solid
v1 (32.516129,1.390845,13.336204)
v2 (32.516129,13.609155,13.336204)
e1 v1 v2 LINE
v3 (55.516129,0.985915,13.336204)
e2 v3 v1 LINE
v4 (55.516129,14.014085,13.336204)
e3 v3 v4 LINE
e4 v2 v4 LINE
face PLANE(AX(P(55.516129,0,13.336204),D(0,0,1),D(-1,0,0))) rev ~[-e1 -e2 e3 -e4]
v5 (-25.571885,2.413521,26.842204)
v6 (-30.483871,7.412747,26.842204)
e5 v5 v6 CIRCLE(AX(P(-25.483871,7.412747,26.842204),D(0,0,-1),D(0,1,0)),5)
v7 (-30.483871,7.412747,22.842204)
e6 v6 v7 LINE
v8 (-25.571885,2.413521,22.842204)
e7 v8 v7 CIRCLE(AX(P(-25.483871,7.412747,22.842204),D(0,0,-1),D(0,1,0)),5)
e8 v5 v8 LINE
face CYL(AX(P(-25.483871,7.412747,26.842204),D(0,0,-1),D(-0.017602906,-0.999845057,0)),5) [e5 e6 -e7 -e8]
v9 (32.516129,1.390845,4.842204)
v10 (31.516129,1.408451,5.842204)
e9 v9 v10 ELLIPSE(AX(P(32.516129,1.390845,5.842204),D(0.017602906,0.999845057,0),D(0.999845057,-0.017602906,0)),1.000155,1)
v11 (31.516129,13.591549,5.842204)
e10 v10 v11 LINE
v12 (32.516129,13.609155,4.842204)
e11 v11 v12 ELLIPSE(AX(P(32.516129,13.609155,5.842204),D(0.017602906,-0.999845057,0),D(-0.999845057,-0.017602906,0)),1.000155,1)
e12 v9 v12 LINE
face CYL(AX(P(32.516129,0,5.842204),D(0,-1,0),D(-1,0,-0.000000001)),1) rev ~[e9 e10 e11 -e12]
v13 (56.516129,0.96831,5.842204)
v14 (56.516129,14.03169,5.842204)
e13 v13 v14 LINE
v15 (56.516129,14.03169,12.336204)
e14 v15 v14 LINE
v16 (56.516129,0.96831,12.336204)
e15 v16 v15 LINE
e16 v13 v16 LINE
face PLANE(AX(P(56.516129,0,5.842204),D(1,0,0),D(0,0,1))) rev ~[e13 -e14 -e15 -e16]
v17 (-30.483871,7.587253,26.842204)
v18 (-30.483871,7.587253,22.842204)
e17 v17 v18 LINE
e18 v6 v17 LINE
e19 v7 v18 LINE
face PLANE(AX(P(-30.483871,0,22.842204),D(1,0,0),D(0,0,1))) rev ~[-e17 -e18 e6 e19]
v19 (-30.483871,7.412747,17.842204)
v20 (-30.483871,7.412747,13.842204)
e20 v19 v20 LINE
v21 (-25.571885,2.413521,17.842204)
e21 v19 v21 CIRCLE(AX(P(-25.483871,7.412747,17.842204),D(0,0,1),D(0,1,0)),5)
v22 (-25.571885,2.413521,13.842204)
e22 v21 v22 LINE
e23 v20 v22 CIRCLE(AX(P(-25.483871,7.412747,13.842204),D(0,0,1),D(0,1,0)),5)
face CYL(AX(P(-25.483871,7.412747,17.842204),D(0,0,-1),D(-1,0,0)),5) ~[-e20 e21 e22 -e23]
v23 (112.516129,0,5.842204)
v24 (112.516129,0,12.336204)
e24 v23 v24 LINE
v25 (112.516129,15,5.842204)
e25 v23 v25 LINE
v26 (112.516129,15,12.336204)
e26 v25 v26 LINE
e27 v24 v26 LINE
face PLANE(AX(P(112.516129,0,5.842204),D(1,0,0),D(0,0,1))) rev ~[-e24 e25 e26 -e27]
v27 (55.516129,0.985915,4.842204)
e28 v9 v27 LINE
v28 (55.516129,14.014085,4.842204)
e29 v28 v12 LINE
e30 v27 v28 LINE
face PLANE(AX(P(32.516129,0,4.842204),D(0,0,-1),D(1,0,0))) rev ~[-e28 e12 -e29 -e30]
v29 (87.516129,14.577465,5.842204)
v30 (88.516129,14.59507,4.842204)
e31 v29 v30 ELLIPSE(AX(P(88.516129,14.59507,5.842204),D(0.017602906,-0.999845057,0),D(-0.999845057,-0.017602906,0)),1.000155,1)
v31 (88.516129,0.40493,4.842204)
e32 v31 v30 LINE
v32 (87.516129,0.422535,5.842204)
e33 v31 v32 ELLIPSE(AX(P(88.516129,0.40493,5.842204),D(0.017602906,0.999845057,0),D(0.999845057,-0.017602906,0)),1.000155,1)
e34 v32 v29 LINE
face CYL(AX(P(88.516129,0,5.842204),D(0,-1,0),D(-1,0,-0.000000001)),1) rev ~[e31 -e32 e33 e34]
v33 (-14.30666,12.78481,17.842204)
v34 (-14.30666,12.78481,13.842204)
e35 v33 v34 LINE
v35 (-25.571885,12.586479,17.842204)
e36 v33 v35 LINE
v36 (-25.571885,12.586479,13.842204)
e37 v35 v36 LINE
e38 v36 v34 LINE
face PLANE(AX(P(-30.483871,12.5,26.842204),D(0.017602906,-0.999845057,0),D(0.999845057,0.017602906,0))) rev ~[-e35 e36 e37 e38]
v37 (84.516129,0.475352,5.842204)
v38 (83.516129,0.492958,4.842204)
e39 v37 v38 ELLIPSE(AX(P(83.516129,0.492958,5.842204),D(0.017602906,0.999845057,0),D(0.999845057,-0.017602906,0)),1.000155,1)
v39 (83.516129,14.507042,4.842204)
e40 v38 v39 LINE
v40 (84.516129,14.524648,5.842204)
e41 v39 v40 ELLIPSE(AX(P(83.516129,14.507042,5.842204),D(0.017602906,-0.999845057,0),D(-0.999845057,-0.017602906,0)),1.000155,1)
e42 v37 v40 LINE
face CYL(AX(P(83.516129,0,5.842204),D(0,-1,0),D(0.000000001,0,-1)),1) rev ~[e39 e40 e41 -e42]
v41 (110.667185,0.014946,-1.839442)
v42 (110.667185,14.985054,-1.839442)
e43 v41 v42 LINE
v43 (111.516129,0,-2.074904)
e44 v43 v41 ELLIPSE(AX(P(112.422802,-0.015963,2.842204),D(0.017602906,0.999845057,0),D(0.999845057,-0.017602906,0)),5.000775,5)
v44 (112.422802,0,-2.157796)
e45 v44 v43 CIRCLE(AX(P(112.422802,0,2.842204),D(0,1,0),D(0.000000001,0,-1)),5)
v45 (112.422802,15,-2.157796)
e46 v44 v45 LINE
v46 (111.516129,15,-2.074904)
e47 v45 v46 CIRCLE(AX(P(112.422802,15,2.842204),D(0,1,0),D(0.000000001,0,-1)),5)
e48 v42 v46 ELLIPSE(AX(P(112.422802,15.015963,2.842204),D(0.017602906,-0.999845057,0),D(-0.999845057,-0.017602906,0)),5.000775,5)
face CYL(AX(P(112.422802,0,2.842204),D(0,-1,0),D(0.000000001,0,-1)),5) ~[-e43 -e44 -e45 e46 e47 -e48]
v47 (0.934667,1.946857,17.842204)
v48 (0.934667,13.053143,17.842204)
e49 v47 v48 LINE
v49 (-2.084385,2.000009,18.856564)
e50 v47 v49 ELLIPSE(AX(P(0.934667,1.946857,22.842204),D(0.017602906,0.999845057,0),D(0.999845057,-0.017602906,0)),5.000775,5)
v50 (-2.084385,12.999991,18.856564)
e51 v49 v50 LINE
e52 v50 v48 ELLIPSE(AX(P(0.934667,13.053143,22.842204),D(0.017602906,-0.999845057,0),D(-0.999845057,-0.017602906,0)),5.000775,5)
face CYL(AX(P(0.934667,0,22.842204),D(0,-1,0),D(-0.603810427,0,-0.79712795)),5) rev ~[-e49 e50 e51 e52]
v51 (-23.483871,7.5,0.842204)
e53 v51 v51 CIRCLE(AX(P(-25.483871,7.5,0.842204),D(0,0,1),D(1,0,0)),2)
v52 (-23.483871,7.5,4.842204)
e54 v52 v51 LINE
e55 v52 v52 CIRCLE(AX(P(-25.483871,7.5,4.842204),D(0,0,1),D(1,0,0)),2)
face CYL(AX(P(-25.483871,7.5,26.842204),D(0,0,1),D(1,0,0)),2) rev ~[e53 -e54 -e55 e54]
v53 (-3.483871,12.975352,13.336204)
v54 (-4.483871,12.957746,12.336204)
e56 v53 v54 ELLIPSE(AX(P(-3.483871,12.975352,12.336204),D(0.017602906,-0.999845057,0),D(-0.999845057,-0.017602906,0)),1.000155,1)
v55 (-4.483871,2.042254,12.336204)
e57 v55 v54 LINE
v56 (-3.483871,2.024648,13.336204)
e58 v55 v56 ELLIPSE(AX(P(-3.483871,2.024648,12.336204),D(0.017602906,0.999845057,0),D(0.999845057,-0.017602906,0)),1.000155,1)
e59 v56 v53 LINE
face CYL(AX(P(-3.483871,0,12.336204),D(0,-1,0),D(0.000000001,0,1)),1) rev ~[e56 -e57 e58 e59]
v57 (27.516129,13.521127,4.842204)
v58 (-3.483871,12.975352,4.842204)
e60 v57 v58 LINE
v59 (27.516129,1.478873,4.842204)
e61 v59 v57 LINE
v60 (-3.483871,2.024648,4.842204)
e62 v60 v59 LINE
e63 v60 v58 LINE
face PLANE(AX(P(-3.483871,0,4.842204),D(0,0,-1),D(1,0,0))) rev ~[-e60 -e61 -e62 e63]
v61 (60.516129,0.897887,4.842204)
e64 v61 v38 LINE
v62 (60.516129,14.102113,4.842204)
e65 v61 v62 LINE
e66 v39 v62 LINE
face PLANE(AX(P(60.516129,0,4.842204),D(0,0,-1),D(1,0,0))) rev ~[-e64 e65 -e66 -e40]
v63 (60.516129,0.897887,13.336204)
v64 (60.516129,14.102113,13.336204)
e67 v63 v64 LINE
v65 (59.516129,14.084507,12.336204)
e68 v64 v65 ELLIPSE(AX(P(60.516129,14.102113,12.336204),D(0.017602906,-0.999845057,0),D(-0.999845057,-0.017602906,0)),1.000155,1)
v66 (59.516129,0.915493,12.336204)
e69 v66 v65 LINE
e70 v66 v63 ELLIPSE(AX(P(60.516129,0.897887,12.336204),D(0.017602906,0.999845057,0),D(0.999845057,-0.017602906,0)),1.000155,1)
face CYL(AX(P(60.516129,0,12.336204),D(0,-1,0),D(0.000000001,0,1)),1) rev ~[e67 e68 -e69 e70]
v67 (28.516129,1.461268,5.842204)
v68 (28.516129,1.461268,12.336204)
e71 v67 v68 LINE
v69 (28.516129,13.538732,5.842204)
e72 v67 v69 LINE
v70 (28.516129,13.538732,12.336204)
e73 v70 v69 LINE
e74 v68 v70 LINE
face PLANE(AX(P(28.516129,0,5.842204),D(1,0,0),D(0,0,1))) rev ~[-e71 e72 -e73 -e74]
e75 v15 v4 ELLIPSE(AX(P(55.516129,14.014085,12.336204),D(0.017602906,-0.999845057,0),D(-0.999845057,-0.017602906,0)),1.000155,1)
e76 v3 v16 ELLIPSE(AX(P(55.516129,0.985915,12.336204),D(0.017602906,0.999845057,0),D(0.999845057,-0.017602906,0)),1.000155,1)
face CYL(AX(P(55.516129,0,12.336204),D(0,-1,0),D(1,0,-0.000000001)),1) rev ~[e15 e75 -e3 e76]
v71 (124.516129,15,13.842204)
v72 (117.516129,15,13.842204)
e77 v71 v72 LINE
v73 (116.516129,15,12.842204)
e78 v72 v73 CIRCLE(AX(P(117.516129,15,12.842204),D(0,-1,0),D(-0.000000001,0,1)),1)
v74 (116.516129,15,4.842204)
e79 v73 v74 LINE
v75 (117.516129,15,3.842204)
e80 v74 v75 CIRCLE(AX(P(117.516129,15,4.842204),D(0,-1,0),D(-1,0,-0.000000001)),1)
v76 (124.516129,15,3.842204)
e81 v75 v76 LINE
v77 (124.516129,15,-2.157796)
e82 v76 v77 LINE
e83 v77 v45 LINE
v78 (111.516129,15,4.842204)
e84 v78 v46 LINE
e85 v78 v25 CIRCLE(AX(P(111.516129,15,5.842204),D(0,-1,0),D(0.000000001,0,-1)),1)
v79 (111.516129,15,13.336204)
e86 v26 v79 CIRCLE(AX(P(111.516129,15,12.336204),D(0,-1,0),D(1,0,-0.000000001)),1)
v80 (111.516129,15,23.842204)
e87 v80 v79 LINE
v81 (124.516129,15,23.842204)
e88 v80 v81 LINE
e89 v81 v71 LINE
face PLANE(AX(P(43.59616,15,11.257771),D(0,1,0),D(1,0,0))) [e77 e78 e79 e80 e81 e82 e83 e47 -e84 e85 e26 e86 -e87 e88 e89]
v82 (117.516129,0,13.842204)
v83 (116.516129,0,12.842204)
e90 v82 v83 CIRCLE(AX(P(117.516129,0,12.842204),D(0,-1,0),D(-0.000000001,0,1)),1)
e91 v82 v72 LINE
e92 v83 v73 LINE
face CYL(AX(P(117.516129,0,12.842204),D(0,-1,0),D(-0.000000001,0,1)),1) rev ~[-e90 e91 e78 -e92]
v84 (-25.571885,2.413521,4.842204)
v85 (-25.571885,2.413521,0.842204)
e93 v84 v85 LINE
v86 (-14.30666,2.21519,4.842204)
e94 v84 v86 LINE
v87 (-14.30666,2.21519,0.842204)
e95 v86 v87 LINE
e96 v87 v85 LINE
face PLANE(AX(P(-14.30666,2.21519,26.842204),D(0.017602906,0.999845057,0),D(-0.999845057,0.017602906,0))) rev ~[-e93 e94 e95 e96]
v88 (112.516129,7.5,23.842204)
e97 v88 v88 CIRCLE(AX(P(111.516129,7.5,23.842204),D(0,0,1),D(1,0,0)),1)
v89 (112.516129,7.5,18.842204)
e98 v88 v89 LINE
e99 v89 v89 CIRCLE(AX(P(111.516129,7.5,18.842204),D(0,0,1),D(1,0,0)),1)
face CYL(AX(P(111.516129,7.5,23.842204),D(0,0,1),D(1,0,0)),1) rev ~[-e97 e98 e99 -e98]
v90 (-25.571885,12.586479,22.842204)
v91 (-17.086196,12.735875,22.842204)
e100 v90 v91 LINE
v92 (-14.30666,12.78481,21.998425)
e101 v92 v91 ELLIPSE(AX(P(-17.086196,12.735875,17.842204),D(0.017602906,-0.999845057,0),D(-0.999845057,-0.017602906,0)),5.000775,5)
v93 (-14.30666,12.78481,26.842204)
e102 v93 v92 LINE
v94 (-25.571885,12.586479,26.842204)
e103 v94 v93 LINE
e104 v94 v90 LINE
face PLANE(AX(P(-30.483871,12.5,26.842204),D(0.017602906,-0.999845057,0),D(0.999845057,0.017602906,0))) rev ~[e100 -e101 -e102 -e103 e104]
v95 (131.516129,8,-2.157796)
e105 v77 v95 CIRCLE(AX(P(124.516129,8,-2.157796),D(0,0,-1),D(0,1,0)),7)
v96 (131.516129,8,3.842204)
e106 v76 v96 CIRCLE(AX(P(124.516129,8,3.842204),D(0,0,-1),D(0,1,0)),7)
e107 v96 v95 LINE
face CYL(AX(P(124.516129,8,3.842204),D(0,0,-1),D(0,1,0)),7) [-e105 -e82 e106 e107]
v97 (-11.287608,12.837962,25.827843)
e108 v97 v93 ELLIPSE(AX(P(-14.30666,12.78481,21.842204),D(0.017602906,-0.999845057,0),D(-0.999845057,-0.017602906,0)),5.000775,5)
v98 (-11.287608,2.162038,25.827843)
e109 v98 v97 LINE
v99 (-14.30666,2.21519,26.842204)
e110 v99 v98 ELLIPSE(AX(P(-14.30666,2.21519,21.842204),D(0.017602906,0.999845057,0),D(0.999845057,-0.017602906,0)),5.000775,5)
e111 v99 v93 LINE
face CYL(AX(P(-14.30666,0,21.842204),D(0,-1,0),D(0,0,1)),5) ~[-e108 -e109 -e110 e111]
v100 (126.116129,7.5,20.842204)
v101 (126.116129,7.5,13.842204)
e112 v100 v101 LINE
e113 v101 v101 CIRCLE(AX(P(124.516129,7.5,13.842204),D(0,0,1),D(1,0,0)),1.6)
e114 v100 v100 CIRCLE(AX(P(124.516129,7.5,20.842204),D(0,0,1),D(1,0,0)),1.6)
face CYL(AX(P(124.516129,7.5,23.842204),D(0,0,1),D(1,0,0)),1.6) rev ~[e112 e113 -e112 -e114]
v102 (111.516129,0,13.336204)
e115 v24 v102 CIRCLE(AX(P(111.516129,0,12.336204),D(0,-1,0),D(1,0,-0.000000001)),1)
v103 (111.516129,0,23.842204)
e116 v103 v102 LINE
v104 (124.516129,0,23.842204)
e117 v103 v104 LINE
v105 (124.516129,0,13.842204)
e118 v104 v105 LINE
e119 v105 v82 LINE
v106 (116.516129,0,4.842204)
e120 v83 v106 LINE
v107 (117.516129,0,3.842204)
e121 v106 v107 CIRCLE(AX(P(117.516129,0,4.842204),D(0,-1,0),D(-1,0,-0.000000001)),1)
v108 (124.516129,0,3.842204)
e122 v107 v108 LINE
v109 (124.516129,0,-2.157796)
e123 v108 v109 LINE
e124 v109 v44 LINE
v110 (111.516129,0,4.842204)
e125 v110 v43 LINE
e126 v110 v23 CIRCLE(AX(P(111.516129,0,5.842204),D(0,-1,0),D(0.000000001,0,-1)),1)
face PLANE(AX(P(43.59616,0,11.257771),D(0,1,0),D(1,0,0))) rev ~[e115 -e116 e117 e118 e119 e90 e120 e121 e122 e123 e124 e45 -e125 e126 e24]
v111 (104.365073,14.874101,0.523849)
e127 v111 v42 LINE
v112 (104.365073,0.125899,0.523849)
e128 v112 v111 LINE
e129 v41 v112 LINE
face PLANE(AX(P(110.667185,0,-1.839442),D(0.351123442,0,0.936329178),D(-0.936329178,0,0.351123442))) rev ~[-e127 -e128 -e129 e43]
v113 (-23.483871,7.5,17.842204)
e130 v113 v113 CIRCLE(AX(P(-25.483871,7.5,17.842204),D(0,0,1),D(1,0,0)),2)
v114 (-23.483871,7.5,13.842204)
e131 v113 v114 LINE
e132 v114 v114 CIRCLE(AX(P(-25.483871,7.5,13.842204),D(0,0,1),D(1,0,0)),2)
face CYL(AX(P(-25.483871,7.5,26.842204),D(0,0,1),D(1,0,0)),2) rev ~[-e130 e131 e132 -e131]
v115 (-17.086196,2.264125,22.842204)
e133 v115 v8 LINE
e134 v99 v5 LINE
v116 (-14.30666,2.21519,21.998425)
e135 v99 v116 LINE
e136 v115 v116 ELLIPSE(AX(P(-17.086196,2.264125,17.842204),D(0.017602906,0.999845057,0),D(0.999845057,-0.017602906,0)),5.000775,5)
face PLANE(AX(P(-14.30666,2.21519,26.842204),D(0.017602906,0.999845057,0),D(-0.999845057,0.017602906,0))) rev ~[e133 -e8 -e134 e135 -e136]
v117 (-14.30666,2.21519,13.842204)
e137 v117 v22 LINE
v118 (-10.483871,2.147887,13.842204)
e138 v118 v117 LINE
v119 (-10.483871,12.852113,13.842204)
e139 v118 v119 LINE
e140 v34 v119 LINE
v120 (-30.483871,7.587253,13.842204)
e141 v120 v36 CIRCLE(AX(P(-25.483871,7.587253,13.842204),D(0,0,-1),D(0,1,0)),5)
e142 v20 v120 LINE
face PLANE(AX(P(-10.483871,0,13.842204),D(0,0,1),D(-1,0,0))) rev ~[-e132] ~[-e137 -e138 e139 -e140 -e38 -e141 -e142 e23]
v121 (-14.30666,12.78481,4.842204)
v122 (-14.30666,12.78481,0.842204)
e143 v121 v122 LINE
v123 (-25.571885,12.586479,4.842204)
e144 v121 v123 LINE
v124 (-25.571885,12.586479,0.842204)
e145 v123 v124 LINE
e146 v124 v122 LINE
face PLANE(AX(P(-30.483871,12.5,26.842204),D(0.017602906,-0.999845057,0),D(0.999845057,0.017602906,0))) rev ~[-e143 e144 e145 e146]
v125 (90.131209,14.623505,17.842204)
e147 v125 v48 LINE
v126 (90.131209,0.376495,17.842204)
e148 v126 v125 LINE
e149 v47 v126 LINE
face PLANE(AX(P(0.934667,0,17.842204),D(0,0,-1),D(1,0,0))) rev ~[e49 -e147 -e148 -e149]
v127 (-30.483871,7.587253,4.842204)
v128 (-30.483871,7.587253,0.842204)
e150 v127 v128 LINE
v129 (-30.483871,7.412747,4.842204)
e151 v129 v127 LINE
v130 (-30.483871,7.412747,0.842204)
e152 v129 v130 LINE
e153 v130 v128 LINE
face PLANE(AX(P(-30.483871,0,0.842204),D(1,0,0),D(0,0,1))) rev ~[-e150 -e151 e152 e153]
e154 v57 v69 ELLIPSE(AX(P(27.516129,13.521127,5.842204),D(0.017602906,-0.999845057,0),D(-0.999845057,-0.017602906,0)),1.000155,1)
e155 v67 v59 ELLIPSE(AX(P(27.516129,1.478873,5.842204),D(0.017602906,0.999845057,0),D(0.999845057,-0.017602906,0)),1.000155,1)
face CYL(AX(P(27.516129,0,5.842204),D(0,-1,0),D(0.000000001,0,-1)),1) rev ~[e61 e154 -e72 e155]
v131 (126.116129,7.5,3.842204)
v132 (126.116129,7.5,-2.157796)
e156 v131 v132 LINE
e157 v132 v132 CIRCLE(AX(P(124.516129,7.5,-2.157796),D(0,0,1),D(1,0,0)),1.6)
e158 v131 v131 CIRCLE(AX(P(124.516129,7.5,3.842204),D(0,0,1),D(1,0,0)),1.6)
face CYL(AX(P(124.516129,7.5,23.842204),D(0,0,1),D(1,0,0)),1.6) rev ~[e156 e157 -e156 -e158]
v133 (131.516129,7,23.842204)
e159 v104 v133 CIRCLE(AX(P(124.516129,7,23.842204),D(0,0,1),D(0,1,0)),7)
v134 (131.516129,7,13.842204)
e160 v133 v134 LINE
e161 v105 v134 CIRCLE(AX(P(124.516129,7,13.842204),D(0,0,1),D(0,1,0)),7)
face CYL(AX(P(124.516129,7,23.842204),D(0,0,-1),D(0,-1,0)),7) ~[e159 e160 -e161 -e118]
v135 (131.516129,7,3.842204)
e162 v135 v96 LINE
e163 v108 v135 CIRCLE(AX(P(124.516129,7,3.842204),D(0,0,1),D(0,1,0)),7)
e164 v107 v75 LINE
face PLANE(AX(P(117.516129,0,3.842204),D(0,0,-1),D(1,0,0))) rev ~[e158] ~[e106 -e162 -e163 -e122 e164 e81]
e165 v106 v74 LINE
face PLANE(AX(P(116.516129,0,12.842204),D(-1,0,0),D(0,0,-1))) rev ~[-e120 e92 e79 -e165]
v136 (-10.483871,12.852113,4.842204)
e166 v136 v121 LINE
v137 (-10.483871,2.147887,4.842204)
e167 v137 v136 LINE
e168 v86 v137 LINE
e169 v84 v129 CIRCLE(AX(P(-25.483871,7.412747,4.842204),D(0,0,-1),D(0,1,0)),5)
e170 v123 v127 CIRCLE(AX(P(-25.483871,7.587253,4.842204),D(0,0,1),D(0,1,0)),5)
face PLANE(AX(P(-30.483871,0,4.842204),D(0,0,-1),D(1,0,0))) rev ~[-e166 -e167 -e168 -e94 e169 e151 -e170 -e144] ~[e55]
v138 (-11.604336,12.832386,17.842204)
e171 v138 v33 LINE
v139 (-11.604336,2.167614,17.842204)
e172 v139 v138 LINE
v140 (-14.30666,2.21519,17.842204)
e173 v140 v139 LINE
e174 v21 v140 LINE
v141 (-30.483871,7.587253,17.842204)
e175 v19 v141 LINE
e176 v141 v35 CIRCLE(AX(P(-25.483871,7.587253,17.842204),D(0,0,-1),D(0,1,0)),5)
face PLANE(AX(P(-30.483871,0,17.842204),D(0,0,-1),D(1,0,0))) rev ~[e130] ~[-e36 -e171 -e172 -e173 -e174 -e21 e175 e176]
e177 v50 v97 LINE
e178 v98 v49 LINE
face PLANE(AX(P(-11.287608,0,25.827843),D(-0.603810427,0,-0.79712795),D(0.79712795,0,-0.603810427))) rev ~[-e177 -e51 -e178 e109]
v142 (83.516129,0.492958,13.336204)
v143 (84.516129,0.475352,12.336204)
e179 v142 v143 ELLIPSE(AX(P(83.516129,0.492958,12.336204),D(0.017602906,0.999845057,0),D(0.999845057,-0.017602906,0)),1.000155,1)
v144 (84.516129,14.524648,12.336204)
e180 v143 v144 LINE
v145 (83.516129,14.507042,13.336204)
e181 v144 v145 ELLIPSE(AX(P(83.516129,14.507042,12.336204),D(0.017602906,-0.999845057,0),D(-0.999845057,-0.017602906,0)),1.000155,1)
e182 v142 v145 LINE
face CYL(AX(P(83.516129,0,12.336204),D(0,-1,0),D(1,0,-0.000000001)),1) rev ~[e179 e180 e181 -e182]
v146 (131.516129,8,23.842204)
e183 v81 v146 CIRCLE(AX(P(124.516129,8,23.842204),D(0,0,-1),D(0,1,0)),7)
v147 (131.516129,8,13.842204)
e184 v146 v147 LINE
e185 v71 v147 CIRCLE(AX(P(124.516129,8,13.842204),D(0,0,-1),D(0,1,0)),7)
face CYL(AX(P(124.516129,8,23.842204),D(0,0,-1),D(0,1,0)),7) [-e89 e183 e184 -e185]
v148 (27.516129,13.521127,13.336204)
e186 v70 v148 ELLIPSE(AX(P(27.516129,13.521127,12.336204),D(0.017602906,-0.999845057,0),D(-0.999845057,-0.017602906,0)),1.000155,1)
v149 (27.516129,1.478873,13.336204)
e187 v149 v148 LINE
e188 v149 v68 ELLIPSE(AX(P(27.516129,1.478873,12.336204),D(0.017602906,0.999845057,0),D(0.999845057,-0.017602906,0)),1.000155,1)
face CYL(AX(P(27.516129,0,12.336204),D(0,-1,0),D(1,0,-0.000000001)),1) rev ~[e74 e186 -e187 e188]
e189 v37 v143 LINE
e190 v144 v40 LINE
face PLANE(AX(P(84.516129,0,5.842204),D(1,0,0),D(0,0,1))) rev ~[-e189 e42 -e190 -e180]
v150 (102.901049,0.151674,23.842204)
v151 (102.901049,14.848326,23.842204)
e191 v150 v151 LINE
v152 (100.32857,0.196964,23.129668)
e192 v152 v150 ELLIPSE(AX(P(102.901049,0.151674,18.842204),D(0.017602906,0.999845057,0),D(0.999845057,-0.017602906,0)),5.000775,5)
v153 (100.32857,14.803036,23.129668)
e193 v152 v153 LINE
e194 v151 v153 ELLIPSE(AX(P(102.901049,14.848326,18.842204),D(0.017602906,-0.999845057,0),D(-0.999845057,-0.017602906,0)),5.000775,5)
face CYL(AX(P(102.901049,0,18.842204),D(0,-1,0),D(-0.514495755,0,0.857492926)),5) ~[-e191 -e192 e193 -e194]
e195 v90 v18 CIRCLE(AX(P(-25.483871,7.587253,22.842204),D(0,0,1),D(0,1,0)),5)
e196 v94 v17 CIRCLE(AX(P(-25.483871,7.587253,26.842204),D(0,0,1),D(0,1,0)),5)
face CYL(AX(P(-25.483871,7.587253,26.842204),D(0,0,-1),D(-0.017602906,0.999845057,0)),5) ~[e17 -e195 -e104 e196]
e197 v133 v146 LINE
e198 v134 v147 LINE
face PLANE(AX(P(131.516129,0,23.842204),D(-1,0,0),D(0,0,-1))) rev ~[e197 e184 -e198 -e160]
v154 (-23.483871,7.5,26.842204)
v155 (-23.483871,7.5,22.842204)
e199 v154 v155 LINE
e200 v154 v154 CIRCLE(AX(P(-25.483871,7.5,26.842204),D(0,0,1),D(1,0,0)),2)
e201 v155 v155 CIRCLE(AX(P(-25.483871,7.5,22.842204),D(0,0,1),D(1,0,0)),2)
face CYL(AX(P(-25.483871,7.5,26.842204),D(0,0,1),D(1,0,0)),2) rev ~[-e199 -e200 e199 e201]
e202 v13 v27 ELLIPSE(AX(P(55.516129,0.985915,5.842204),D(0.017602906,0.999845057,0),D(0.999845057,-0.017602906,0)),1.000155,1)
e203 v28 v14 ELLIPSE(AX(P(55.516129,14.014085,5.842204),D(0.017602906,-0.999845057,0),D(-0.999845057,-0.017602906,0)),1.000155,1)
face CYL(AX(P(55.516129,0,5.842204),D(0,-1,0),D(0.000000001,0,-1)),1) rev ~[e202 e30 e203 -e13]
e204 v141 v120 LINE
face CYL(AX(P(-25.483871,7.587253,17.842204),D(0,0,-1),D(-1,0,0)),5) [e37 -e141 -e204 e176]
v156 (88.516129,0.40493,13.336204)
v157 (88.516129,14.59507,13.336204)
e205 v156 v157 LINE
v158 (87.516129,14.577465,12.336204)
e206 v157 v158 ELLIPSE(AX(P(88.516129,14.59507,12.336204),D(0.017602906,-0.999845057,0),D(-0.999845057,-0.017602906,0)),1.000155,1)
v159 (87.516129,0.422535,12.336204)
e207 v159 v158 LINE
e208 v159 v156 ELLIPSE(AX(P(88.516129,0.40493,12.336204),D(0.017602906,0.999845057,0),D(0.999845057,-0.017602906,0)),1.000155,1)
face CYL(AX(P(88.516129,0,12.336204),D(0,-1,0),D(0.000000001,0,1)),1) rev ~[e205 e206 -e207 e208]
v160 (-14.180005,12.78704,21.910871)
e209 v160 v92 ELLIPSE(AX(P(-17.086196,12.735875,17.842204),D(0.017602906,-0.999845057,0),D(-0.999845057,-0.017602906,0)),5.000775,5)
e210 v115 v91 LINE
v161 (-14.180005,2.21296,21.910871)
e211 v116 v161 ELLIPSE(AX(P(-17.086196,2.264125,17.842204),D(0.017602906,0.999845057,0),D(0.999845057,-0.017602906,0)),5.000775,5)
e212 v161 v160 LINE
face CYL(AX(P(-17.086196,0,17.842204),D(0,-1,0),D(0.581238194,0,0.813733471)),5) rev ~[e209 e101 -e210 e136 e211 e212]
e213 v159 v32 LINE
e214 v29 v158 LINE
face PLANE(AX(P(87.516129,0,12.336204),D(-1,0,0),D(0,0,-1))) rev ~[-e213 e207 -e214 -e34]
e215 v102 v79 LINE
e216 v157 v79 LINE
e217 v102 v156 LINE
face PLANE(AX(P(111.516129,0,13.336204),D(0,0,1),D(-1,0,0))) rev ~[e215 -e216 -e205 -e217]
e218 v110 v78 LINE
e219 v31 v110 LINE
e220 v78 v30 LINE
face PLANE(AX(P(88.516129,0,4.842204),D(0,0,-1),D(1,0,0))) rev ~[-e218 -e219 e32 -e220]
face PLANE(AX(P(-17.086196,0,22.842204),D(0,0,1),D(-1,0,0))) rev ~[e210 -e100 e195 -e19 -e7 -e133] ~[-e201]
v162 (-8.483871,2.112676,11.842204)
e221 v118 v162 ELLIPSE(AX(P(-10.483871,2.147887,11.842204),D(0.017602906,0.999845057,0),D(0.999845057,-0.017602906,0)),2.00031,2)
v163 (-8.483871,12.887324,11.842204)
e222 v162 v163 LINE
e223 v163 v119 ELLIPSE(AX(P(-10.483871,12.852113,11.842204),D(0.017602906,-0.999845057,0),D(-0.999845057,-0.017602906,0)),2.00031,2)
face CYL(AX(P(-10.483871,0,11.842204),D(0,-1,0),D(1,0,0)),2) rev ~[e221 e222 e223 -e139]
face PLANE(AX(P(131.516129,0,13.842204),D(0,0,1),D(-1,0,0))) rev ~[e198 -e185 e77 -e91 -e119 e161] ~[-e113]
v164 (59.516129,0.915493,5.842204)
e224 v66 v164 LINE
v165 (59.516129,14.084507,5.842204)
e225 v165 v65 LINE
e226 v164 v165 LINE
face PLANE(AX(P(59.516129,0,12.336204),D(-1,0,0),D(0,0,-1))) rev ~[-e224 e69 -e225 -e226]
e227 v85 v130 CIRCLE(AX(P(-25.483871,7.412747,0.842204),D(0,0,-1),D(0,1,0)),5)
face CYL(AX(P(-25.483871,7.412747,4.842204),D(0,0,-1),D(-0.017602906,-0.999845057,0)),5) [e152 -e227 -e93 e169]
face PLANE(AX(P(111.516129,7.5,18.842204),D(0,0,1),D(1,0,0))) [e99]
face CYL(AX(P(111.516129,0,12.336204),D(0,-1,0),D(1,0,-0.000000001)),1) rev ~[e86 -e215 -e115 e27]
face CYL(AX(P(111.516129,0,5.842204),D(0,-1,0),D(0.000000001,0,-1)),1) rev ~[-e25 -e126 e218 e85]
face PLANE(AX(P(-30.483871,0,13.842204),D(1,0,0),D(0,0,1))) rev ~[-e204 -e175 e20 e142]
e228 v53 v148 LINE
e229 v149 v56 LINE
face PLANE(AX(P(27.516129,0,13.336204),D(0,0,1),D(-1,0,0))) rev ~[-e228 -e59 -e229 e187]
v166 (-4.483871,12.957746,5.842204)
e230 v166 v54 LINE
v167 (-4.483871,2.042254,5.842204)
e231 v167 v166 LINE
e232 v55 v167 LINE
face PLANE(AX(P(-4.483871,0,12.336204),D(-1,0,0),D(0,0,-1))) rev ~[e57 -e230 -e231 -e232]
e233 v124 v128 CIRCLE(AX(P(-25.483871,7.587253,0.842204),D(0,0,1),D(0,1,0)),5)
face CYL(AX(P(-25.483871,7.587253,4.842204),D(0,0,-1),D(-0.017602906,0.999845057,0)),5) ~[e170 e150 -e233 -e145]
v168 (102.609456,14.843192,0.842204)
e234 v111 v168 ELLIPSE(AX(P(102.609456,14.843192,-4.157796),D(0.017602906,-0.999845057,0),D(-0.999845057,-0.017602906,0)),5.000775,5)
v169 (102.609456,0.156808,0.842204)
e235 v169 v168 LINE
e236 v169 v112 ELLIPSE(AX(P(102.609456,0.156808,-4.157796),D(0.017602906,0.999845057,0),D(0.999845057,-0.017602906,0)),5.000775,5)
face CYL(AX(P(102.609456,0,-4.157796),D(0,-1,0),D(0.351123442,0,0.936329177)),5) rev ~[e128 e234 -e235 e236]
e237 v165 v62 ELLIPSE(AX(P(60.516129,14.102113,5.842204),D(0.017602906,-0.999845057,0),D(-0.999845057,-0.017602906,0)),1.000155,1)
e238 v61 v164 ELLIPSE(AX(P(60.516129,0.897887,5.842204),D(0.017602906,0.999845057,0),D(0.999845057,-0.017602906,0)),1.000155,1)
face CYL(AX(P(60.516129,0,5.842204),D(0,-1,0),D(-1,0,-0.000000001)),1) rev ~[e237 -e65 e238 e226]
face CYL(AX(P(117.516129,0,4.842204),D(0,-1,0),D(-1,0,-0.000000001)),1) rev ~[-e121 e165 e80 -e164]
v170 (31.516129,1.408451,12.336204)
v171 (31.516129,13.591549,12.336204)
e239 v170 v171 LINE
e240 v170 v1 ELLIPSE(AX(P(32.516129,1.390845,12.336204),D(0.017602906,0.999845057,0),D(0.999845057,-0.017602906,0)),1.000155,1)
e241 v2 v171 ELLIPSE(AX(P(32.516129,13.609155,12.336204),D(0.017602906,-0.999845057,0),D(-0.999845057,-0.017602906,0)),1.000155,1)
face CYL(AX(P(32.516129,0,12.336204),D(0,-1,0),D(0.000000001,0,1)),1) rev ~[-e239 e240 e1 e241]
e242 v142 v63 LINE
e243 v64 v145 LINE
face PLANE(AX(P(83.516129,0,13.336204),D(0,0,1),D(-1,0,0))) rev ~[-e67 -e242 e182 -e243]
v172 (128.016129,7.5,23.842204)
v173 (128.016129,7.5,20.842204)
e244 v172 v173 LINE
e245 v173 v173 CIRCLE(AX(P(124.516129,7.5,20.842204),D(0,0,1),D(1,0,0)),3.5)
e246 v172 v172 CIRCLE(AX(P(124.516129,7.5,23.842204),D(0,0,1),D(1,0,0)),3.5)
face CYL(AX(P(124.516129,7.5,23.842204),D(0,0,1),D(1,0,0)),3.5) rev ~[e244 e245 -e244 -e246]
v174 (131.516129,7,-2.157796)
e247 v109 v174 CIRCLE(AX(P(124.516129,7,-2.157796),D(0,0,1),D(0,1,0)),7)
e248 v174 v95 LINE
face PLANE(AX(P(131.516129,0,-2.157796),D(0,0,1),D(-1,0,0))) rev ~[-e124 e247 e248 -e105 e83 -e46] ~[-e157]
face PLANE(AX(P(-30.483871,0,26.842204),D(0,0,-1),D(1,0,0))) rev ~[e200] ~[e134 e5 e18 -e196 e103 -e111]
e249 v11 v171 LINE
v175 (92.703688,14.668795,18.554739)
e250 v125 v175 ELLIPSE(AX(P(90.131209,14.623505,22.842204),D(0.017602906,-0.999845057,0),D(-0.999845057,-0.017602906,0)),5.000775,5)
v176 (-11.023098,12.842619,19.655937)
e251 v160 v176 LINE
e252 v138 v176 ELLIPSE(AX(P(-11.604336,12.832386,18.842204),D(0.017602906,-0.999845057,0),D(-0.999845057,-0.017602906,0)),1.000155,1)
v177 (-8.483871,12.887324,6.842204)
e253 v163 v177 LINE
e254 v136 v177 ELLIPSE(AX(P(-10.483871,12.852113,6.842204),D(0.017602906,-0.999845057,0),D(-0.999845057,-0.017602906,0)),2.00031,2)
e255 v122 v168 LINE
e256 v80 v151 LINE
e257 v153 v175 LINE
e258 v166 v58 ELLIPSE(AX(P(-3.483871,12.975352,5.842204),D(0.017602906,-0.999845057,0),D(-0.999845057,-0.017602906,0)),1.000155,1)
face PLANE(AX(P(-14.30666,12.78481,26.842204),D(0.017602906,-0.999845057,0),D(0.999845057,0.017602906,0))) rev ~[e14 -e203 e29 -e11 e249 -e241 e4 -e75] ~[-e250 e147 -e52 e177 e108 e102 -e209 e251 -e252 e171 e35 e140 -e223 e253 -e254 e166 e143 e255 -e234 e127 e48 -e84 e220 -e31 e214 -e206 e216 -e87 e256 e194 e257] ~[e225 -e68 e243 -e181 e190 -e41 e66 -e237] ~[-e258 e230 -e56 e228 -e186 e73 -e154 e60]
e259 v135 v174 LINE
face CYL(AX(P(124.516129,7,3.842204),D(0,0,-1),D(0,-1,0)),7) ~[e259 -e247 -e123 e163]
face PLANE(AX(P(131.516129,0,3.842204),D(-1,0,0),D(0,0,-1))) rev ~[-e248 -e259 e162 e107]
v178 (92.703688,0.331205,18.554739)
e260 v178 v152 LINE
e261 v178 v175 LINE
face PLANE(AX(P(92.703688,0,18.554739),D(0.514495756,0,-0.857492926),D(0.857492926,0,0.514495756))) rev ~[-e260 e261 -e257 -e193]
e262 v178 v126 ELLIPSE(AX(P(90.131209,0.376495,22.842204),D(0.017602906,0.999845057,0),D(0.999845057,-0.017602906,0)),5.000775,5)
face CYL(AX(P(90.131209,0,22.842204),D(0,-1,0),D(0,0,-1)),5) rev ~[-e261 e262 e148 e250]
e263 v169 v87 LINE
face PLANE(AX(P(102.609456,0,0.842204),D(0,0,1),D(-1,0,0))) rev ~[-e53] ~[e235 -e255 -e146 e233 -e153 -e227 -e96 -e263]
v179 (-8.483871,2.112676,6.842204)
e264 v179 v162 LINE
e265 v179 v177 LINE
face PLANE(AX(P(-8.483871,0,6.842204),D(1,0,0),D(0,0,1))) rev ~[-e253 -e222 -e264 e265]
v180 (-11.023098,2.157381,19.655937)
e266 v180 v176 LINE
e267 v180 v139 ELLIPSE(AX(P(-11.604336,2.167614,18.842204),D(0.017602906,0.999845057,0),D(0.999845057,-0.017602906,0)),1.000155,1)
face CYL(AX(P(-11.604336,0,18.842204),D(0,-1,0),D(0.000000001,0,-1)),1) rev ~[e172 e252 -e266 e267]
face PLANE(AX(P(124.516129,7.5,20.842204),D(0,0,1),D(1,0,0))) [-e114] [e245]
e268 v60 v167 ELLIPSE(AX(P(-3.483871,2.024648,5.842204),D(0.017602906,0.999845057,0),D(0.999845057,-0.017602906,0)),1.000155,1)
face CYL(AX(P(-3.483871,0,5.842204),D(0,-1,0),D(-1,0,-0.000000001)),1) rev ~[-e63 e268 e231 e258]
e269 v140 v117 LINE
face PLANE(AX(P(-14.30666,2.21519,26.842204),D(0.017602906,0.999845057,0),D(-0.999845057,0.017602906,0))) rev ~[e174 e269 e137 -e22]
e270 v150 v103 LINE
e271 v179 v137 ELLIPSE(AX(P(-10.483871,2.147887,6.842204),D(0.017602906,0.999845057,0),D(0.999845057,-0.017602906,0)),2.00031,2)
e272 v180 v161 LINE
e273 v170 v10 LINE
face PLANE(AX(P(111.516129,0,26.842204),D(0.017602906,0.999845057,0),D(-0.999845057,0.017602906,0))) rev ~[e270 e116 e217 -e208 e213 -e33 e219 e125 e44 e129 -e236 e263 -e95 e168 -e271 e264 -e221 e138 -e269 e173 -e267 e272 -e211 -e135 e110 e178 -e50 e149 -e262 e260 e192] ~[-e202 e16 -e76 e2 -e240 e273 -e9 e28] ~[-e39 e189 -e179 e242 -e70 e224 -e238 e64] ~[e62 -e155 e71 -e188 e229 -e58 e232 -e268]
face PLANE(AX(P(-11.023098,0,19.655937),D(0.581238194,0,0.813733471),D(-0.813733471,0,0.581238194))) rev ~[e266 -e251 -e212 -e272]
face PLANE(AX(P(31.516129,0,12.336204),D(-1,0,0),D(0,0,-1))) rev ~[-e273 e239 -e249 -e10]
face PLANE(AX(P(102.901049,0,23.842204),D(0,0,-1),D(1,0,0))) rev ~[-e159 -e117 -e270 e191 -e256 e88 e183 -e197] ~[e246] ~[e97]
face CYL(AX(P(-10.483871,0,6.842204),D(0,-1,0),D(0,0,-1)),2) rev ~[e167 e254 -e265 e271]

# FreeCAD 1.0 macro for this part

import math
import FreeCAD as App
import Part
import Sketcher


def edges_at(feature, points):
    """Names of the edges that pass closest to the given points."""
    edges = feature.Shape.Edges
    near = lambda p: min(range(len(edges)), key=lambda i: edges[i].distToShape(Part.Vertex(*p))[0])
    return sorted({f"Edge{near(p) + 1}" for p in points})

doc = App.newDocument("Part")
body = doc.addObject("PartDesign::Body", "Body")

# Sketch on XZ plane
sketch1 = body.newObject("Sketcher::SketchObject", "Sketch")
sketch1.AttachmentSupport = (doc.getObject("XZ_Plane"), [""])
sketch1.MapMode = "FlatFace"
sketch1.addGeometry([
    Part.LineSegment(App.Vector(-30.5, 13.8, 0), App.Vector(-30.5, 17.8, 0)),  # 0
    Part.LineSegment(App.Vector(-30.5, 17.8, 0), App.Vector(-11.6, 17.8, 0)),  # 1
    Part.ArcOfCircle(Part.Circle(App.Vector(-11.6, 18.8, 0), App.Vector(0, 0, 1), 1), math.radians(-90), math.radians(54)),  # 2
    Part.LineSegment(App.Vector(-11, 19.7, 0), App.Vector(-14.2, 21.9, 0)),  # 3
    Part.ArcOfCircle(Part.Circle(App.Vector(-17.1, 17.8, 0), App.Vector(0, 0, 1), 5), math.radians(54), math.radians(90)),  # 4
    Part.LineSegment(App.Vector(-17.1, 22.8, 0), App.Vector(-30.5, 22.8, 0)),  # 5
    Part.LineSegment(App.Vector(-30.5, 22.8, 0), App.Vector(-30.5, 26.8, 0)),  # 6
    Part.LineSegment(App.Vector(-30.5, 26.8, 0), App.Vector(-14.3, 26.8, 0)),  # 7
    Part.ArcOfCircle(Part.Circle(App.Vector(-14.3, 21.8, 0), App.Vector(0, 0, 1), 5), math.radians(53), math.radians(90)),  # 8
    Part.LineSegment(App.Vector(-11.3, 25.8, 0), App.Vector(-2.1, 18.9, 0)),  # 9
    Part.ArcOfCircle(Part.Circle(App.Vector(0.9, 22.8, 0), App.Vector(0, 0, 1), 5), math.radians(-127), math.radians(-90)),  # 10
    Part.LineSegment(App.Vector(0.9, 17.8, 0), App.Vector(90.1, 17.8, 0)),  # 11
    Part.ArcOfCircle(Part.Circle(App.Vector(90.1, 22.8, 0), App.Vector(0, 0, 1), 5), math.radians(-90), math.radians(-59)),  # 12
    Part.LineSegment(App.Vector(92.7, 18.6, 0), App.Vector(100.3, 23.1, 0)),  # 13
    Part.ArcOfCircle(Part.Circle(App.Vector(102.9, 18.8, 0), App.Vector(0, 0, 1), 5), math.radians(90), math.radians(121)),  # 14
    Part.LineSegment(App.Vector(102.9, 23.8, 0), App.Vector(131.5, 23.8, 0)),  # 15
    Part.LineSegment(App.Vector(131.5, 23.8, 0), App.Vector(131.5, 13.8, 0)),  # 16
    Part.LineSegment(App.Vector(131.5, 13.8, 0), App.Vector(117.5, 13.8, 0)),  # 17
    Part.ArcOfCircle(Part.Circle(App.Vector(117.5, 12.8, 0), App.Vector(0, 0, 1), 1), math.radians(90), math.radians(180)),  # 18
    Part.LineSegment(App.Vector(116.5, 12.8, 0), App.Vector(116.5, 4.8, 0)),  # 19
    Part.ArcOfCircle(Part.Circle(App.Vector(117.5, 4.8, 0), App.Vector(0, 0, 1), 1), math.radians(-180), math.radians(-90)),  # 20
    Part.LineSegment(App.Vector(117.5, 3.8, 0), App.Vector(131.5, 3.8, 0)),  # 21
    Part.LineSegment(App.Vector(131.5, 3.8, 0), App.Vector(131.5, -2.2, 0)),  # 22
    Part.LineSegment(App.Vector(131.5, -2.2, 0), App.Vector(112.4, -2.2, 0)),  # 23
    Part.ArcOfCircle(Part.Circle(App.Vector(112.4, 2.8, 0), App.Vector(0, 0, 1), 5), math.radians(-111), math.radians(-90)),  # 24
    Part.LineSegment(App.Vector(110.7, -1.8, 0), App.Vector(104.4, 0.5, 0)),  # 25
    Part.ArcOfCircle(Part.Circle(App.Vector(102.6, -4.2, 0), App.Vector(0, 0, 1), 5), math.radians(69), math.radians(90)),  # 26
    Part.LineSegment(App.Vector(102.6, 0.8, 0), App.Vector(-30.5, 0.8, 0)),  # 27
    Part.LineSegment(App.Vector(-30.5, 0.8, 0), App.Vector(-30.5, 4.8, 0)),  # 28
    Part.LineSegment(App.Vector(-30.5, 4.8, 0), App.Vector(-10.5, 4.8, 0)),  # 29
    Part.ArcOfCircle(Part.Circle(App.Vector(-10.5, 6.8, 0), App.Vector(0, 0, 1), 2), math.radians(-90), math.radians(0)),  # 30
    Part.LineSegment(App.Vector(-8.5, 6.8, 0), App.Vector(-8.5, 11.8, 0)),  # 31
    Part.ArcOfCircle(Part.Circle(App.Vector(-10.5, 11.8, 0), App.Vector(0, 0, 1), 2), math.radians(0), math.radians(90)),  # 32
    Part.LineSegment(App.Vector(-10.5, 13.8, 0), App.Vector(-30.5, 13.8, 0)),  # 33
    Part.ArcOfCircle(Part.Circle(App.Vector(-3.5, 5.8, 0), App.Vector(0, 0, 1), 1), math.radians(-180), math.radians(-90)),  # 34
    Part.LineSegment(App.Vector(-3.5, 4.8, 0), App.Vector(27.5, 4.8, 0)),  # 35
    Part.ArcOfCircle(Part.Circle(App.Vector(27.5, 5.8, 0), App.Vector(0, 0, 1), 1), math.radians(-90), math.radians(0)),  # 36
    Part.LineSegment(App.Vector(28.5, 5.8, 0), App.Vector(28.5, 12.3, 0)),  # 37
    Part.ArcOfCircle(Part.Circle(App.Vector(27.5, 12.3, 0), App.Vector(0, 0, 1), 1), math.radians(0), math.radians(90)),  # 38
    Part.LineSegment(App.Vector(27.5, 13.3, 0), App.Vector(-3.5, 13.3, 0)),  # 39
    Part.ArcOfCircle(Part.Circle(App.Vector(-3.5, 12.3, 0), App.Vector(0, 0, 1), 1), math.radians(90), math.radians(180)),  # 40
    Part.LineSegment(App.Vector(-4.5, 12.3, 0), App.Vector(-4.5, 5.8, 0)),  # 41
    Part.ArcOfCircle(Part.Circle(App.Vector(32.5, 5.8, 0), App.Vector(0, 0, 1), 1), math.radians(-180), math.radians(-90)),  # 42
    Part.LineSegment(App.Vector(32.5, 4.8, 0), App.Vector(55.5, 4.8, 0)),  # 43
    Part.ArcOfCircle(Part.Circle(App.Vector(55.5, 5.8, 0), App.Vector(0, 0, 1), 1), math.radians(-90), math.radians(0)),  # 44
    Part.LineSegment(App.Vector(56.5, 5.8, 0), App.Vector(56.5, 12.3, 0)),  # 45
    Part.ArcOfCircle(Part.Circle(App.Vector(55.5, 12.3, 0), App.Vector(0, 0, 1), 1), math.radians(0), math.radians(90)),  # 46
    Part.LineSegment(App.Vector(55.5, 13.3, 0), App.Vector(32.5, 13.3, 0)),  # 47
    Part.ArcOfCircle(Part.Circle(App.Vector(32.5, 12.3, 0), App.Vector(0, 0, 1), 1), math.radians(90), math.radians(180)),  # 48
    Part.LineSegment(App.Vector(31.5, 12.3, 0), App.Vector(31.5, 5.8, 0)),  # 49
    Part.ArcOfCircle(Part.Circle(App.Vector(60.5, 5.8, 0), App.Vector(0, 0, 1), 1), math.radians(-180), math.radians(-90)),  # 50
    Part.LineSegment(App.Vector(60.5, 4.8, 0), App.Vector(83.5, 4.8, 0)),  # 51
    Part.ArcOfCircle(Part.Circle(App.Vector(83.5, 5.8, 0), App.Vector(0, 0, 1), 1), math.radians(-90), math.radians(0)),  # 52
    Part.LineSegment(App.Vector(84.5, 5.8, 0), App.Vector(84.5, 12.3, 0)),  # 53
    Part.ArcOfCircle(Part.Circle(App.Vector(83.5, 12.3, 0), App.Vector(0, 0, 1), 1), math.radians(0), math.radians(90)),  # 54
    Part.LineSegment(App.Vector(83.5, 13.3, 0), App.Vector(60.5, 13.3, 0)),  # 55
    Part.ArcOfCircle(Part.Circle(App.Vector(60.5, 12.3, 0), App.Vector(0, 0, 1), 1), math.radians(90), math.radians(180)),  # 56
    Part.LineSegment(App.Vector(59.5, 12.3, 0), App.Vector(59.5, 5.8, 0)),  # 57
    Part.ArcOfCircle(Part.Circle(App.Vector(88.5, 5.8, 0), App.Vector(0, 0, 1), 1), math.radians(-180), math.radians(-90)),  # 58
    Part.LineSegment(App.Vector(88.5, 4.8, 0), App.Vector(111.5, 4.8, 0)),  # 59
    Part.ArcOfCircle(Part.Circle(App.Vector(111.5, 5.8, 0), App.Vector(0, 0, 1), 1), math.radians(-90), math.radians(0)),  # 60
    Part.LineSegment(App.Vector(112.5, 5.8, 0), App.Vector(112.5, 12.3, 0)),  # 61
    Part.ArcOfCircle(Part.Circle(App.Vector(111.5, 12.3, 0), App.Vector(0, 0, 1), 1), math.radians(0), math.radians(90)),  # 62
    Part.LineSegment(App.Vector(111.5, 13.3, 0), App.Vector(88.5, 13.3, 0)),  # 63
    Part.ArcOfCircle(Part.Circle(App.Vector(88.5, 12.3, 0), App.Vector(0, 0, 1), 1), math.radians(90), math.radians(180)),  # 64
    Part.LineSegment(App.Vector(87.5, 12.3, 0), App.Vector(87.5, 5.8, 0)),  # 65
], False)
sketch1.addConstraint([
    Sketcher.Constraint("Coincident", 0, 2, 1, 1),
    Sketcher.Constraint("Tangent", 1, 2, 2, 1),
    Sketcher.Constraint("Tangent", 2, 2, 3, 1),
    Sketcher.Constraint("Tangent", 3, 2, 4, 1),
    Sketcher.Constraint("Tangent", 4, 2, 5, 1),
    Sketcher.Constraint("Coincident", 5, 2, 6, 1),
    Sketcher.Constraint("Coincident", 6, 2, 7, 1),
    Sketcher.Constraint("Tangent", 7, 2, 8, 2),
    Sketcher.Constraint("Tangent", 8, 1, 9, 1),
    Sketcher.Constraint("Tangent", 9, 2, 10, 1),
    Sketcher.Constraint("Tangent", 10, 2, 11, 1),
    Sketcher.Constraint("Tangent", 11, 2, 12, 1),
    Sketcher.Constraint("Tangent", 12, 2, 13, 1),
    Sketcher.Constraint("Tangent", 13, 2, 14, 2),
    Sketcher.Constraint("Tangent", 14, 1, 15, 1),
    Sketcher.Constraint("Coincident", 15, 2, 16, 1),
    Sketcher.Constraint("Coincident", 16, 2, 17, 1),
    Sketcher.Constraint("Tangent", 17, 2, 18, 1),
    Sketcher.Constraint("Tangent", 18, 2, 19, 1),
    Sketcher.Constraint("Tangent", 19, 2, 20, 1),
    Sketcher.Constraint("Tangent", 20, 2, 21, 1),
    Sketcher.Constraint("Coincident", 21, 2, 22, 1),
    Sketcher.Constraint("Coincident", 22, 2, 23, 1),
    Sketcher.Constraint("Tangent", 23, 2, 24, 2),
    Sketcher.Constraint("Tangent", 24, 1, 25, 1),
    Sketcher.Constraint("Tangent", 25, 2, 26, 1),
    Sketcher.Constraint("Tangent", 26, 2, 27, 1),
    Sketcher.Constraint("Coincident", 27, 2, 28, 1),
    Sketcher.Constraint("Coincident", 28, 2, 29, 1),
    Sketcher.Constraint("Tangent", 29, 2, 30, 1),
    Sketcher.Constraint("Tangent", 30, 2, 31, 1),
    Sketcher.Constraint("Tangent", 31, 2, 32, 1),
    Sketcher.Constraint("Tangent", 32, 2, 33, 1),
    Sketcher.Constraint("Coincident", 33, 2, 0, 1),
    Sketcher.Constraint("Tangent", 34, 2, 35, 1),
    Sketcher.Constraint("Tangent", 35, 2, 36, 1),
    Sketcher.Constraint("Tangent", 36, 2, 37, 1),
    Sketcher.Constraint("Tangent", 37, 2, 38, 1),
    Sketcher.Constraint("Tangent", 38, 2, 39, 1),
    Sketcher.Constraint("Tangent", 39, 2, 40, 1),
    Sketcher.Constraint("Tangent", 40, 2, 41, 1),
    Sketcher.Constraint("Tangent", 41, 2, 34, 1),
    Sketcher.Constraint("Tangent", 42, 2, 43, 1),
    Sketcher.Constraint("Tangent", 43, 2, 44, 1),
    Sketcher.Constraint("Tangent", 44, 2, 45, 1),
    Sketcher.Constraint("Tangent", 45, 2, 46, 1),
    Sketcher.Constraint("Tangent", 46, 2, 47, 1),
    Sketcher.Constraint("Tangent", 47, 2, 48, 1),
    Sketcher.Constraint("Tangent", 48, 2, 49, 1),
    Sketcher.Constraint("Tangent", 49, 2, 42, 1),
    Sketcher.Constraint("Tangent", 50, 2, 51, 1),
    Sketcher.Constraint("Tangent", 51, 2, 52, 1),
    Sketcher.Constraint("Tangent", 52, 2, 53, 1),
    Sketcher.Constraint("Tangent", 53, 2, 54, 1),
    Sketcher.Constraint("Tangent", 54, 2, 55, 1),
    Sketcher.Constraint("Tangent", 55, 2, 56, 1),
    Sketcher.Constraint("Tangent", 56, 2, 57, 1),
    Sketcher.Constraint("Tangent", 57, 2, 50, 1),
    Sketcher.Constraint("Tangent", 58, 2, 59, 1),
    Sketcher.Constraint("Tangent", 59, 2, 60, 1),
    Sketcher.Constraint("Tangent", 60, 2, 61, 1),
    Sketcher.Constraint("Tangent", 61, 2, 62, 1),
    Sketcher.Constraint("Tangent", 62, 2, 63, 1),
    Sketcher.Constraint("Tangent", 63, 2, 64, 1),
    Sketcher.Constraint("Tangent", 64, 2, 65, 1),
    Sketcher.Constraint("Tangent", 65, 2, 58, 1),
    Sketcher.Constraint("Vertical", 0),
    Sketcher.Constraint("Horizontal", 1),
    Sketcher.Constraint("Horizontal", 5),
    Sketcher.Constraint("Vertical", 6),
    Sketcher.Constraint("Horizontal", 7),
    Sketcher.Constraint("Horizontal", 11),
    Sketcher.Constraint("Horizontal", 15),
    Sketcher.Constraint("Vertical", 16),
    Sketcher.Constraint("Horizontal", 17),
    Sketcher.Constraint("Vertical", 19),
    Sketcher.Constraint("Horizontal", 21),
    Sketcher.Constraint("Vertical", 22),
    Sketcher.Constraint("Horizontal", 23),
    Sketcher.Constraint("Horizontal", 27),
    Sketcher.Constraint("Vertical", 28),
    Sketcher.Constraint("Horizontal", 29),
    Sketcher.Constraint("Vertical", 31),
    Sketcher.Constraint("Horizontal", 33),
    Sketcher.Constraint("Horizontal", 35),
    Sketcher.Constraint("Vertical", 37),
    Sketcher.Constraint("Horizontal", 39),
    Sketcher.Constraint("Vertical", 41),
    Sketcher.Constraint("Horizontal", 43),
    Sketcher.Constraint("Vertical", 45),
    Sketcher.Constraint("Horizontal", 47),
    Sketcher.Constraint("Vertical", 49),
    Sketcher.Constraint("Horizontal", 51),
    Sketcher.Constraint("Vertical", 53),
    Sketcher.Constraint("Horizontal", 55),
    Sketcher.Constraint("Vertical", 57),
    Sketcher.Constraint("Horizontal", 59),
    Sketcher.Constraint("Vertical", 61),
    Sketcher.Constraint("Horizontal", 63),
    Sketcher.Constraint("Vertical", 65),
    Sketcher.Constraint("Equal", 4, 8),
    Sketcher.Constraint("Equal", 8, 10),
    Sketcher.Constraint("Equal", 10, 12),
    Sketcher.Constraint("Equal", 12, 14),
    Sketcher.Constraint("Equal", 2, 18),
    Sketcher.Constraint("Equal", 18, 20),
    Sketcher.Constraint("Equal", 14, 24),
    Sketcher.Constraint("Equal", 24, 26),
    Sketcher.Constraint("Equal", 30, 32),
    Sketcher.Constraint("Equal", 20, 34),
    Sketcher.Constraint("Equal", 34, 36),
    Sketcher.Constraint("Equal", 36, 38),
    Sketcher.Constraint("Equal", 38, 40),
    Sketcher.Constraint("Equal", 40, 42),
    Sketcher.Constraint("Equal", 42, 44),
    Sketcher.Constraint("Equal", 44, 46),
    Sketcher.Constraint("Equal", 46, 48),
    Sketcher.Constraint("Equal", 48, 50),
    Sketcher.Constraint("Equal", 50, 52),
    Sketcher.Constraint("Equal", 52, 54),
    Sketcher.Constraint("Equal", 54, 56),
    Sketcher.Constraint("Equal", 56, 58),
    Sketcher.Constraint("Equal", 58, 60),
    Sketcher.Constraint("Equal", 60, 62),
    Sketcher.Constraint("Equal", 62, 64),
    Sketcher.Constraint("Horizontal", 2, 3, 14, 3),
    Sketcher.Constraint("Horizontal", 36, 3, 42, 3),
    Sketcher.Constraint("Horizontal", 40, 3, 46, 3),
    Sketcher.Constraint("Horizontal", 44, 3, 50, 3),
    Sketcher.Constraint("Horizontal", 48, 3, 54, 3),
    Sketcher.Constraint("Horizontal", 52, 3, 58, 3),
    Sketcher.Constraint("Horizontal", 56, 3, 62, 3),
    Sketcher.Constraint("Horizontal", 4, 3, 0, 2),
    Sketcher.Constraint("Horizontal", 12, 3, 4, 2),
    Sketcher.Constraint("Horizontal", 19, 2, 28, 2),
    Sketcher.Constraint("Horizontal", 17, 2, 32, 2),
    Sketcher.Constraint("Horizontal", 29, 2, 34, 2),
    Sketcher.Constraint("Vertical", 0, 2, 5, 2),
    Sketcher.Constraint("Vertical", 16, 2, 21, 2),
    Sketcher.Constraint("Vertical", 6, 2, 27, 2),
    Sketcher.Constraint("Equal", 47, 51),
    Sketcher.Constraint("Equal", 55, 59),
    Sketcher.Constraint("Equal", 0, 6),
    Sketcher.Constraint("Equal", 6, 28),
    Sketcher.Constraint("Radius", 2, 1.0),
    Sketcher.Constraint("Radius", 4, 5.0),
    Sketcher.Constraint("Radius", 30, 2.0),
    Sketcher.Constraint("DistanceX", 17, 2, 17, 1, 14.0),
    Sketcher.Constraint("DistanceX", 29, 1, 29, 2, 20.0),
    Sketcher.Constraint("DistanceX", 35, 1, 35, 2, 31.0),
    Sketcher.Constraint("DistanceX", 43, 1, 43, 2, 23.0),
    Sketcher.Constraint("DistanceY", 0, 1, 0, 2, 4.0),
    Sketcher.Constraint("DistanceY", 19, 2, 19, 1, 8.0),
    Sketcher.Constraint("DistanceY", 22, 2, 22, 1, 6.0),
    Sketcher.Constraint("DistanceY", 37, 1, 37, 2, 6.494),
    Sketcher.Constraint("DistanceX", 7, 1, 7, 2, 16.177211),
    Sketcher.Constraint("DistanceX", 15, 1, 15, 2, 28.61508),
    Sketcher.Constraint("DistanceX", -1, 1, 24, 3, 112.422802),
    Sketcher.Constraint("DistanceX", 1, 1, 1, 2, 18.879535),
    Sketcher.Constraint("DistanceX", 5, 2, 5, 1, 13.397675),
    Sketcher.Constraint("DistanceX", 11, 1, 11, 2, 89.196542),
    Sketcher.Constraint("DistanceX", 23, 2, 23, 1, 19.093327),
    Sketcher.Constraint("DistanceX", 27, 2, 27, 1, 133.093327),
    Sketcher.Constraint("DistanceX", 8, 3, -1, 1, 14.30666),
    Sketcher.Constraint("DistanceX", -1, 1, 12, 3, 90.131209),
    Sketcher.Constraint("DistanceX", 34, 3, -1, 1, 3.483871),
    Sketcher.Constraint("DistanceX", -1, 1, 42, 3, 32.516129),
    Sketcher.Constraint("DistanceX", -1, 1, 50, 3, 60.516129),
    Sketcher.Constraint("DistanceX", -1, 1, 58, 3, 88.516129),
    Sketcher.Constraint("DistanceY", -1, 1, 3, 2, 21.910871),
])
pad1 = body.newObject("PartDesign::Pad", "Pad")
pad1.Profile = sketch1
pad1.Length = 15
pad1.Reversed = True

# Sketch on XY plane
sketch2 = body.newObject("Sketcher::SketchObject", "Sketch001")
sketch2.AttachmentSupport = (doc.getObject("XY_Plane"), [""])
sketch2.MapMode = "FlatFace"
sketch2.AttachmentOffset = App.Placement(App.Vector(0, 0, 26.842204), App.Rotation())
sketch2.addGeometry([
    Part.LineSegment(App.Vector(-14.3, 2.2, 0), App.Vector(-30.5, 2.5, 0)),  # 0
    Part.LineSegment(App.Vector(-30.5, 2.5, 0), App.Vector(-30.5, 0, 0)),  # 1
    Part.LineSegment(App.Vector(-30.5, 0, 0), App.Vector(111.5, 0, 0)),  # 2
    Part.LineSegment(App.Vector(111.5, 0, 0), App.Vector(-14.3, 2.2, 0)),  # 3
    Part.LineSegment(App.Vector(-30.5, 15, 0), App.Vector(-30.5, 12.5, 0)),  # 4
    Part.LineSegment(App.Vector(-30.5, 12.5, 0), App.Vector(-14.3, 12.8, 0)),  # 5
    Part.LineSegment(App.Vector(-14.3, 12.8, 0), App.Vector(111.5, 15, 0)),  # 6
    Part.LineSegment(App.Vector(111.5, 15, 0), App.Vector(-30.5, 15, 0)),  # 7
], False)
sketch2.addConstraint([
    Sketcher.Constraint("Coincident", 0, 2, 1, 1),
    Sketcher.Constraint("Coincident", 1, 2, 2, 1),
    Sketcher.Constraint("Coincident", 2, 2, 3, 1),
    Sketcher.Constraint("Coincident", 3, 2, 0, 1),
    Sketcher.Constraint("Coincident", 4, 2, 5, 1),
    Sketcher.Constraint("Coincident", 5, 2, 6, 1),
    Sketcher.Constraint("Coincident", 6, 2, 7, 1),
    Sketcher.Constraint("Coincident", 7, 2, 4, 1),
    Sketcher.Constraint("Vertical", 1),
    Sketcher.Constraint("Horizontal", 2),
    Sketcher.Constraint("Vertical", 4),
    Sketcher.Constraint("Horizontal", 7),
    Sketcher.Constraint("PointOnObject", 1, 2, -1),
    Sketcher.Constraint("Parallel", 0, 3),
    Sketcher.Constraint("Parallel", 5, 6),
    Sketcher.Constraint("Vertical", 1, 2, 4, 2),
    Sketcher.Constraint("Vertical", 3, 2, 5, 2),
    Sketcher.Constraint("Vertical", 2, 2, 6, 2),
    Sketcher.Constraint("Equal", 1, 4),
    Sketcher.Constraint("DistanceX", 2, 1, 2, 2, 142.0),
    Sketcher.Constraint("DistanceY", 1, 2, 1, 1, 2.5),
    Sketcher.Constraint("DistanceY", -1, 1, 6, 2, 15.0),
    Sketcher.Constraint("Distance", 0, 16.179718),
    Sketcher.Constraint("DistanceX", 0, 2, -1, 1, 30.483871),
])
pocket1 = body.newObject("PartDesign::Pocket", "Pocket")
pocket1.Profile = sketch2
pocket1.Type = "ThroughAll"

# Sketch on XY plane
sketch3 = body.newObject("Sketcher::SketchObject", "Sketch002")
sketch3.AttachmentSupport = (doc.getObject("XY_Plane"), [""])
sketch3.MapMode = "FlatFace"
sketch3.AttachmentOffset = App.Placement(App.Vector(0, 0, 26.842204), App.Rotation())
sketch3.addGeometry(Part.Circle(App.Vector(-25.5, 7.5, 0), App.Vector(0, 0, 1), 2), False)
sketch3.addConstraint([
    Sketcher.Constraint("Diameter", 0, 4.0),
    Sketcher.Constraint("DistanceY", -1, 1, 0, 3, 7.5),
    Sketcher.Constraint("DistanceX", 0, 3, -1, 1, 25.483871),
])
pocket2 = body.newObject("PartDesign::Pocket", "Pocket001")
pocket2.Profile = sketch3
pocket2.Type = "ThroughAll"

# Sketch on XY plane
sketch4 = body.newObject("Sketcher::SketchObject", "Sketch003")
sketch4.AttachmentSupport = (doc.getObject("XY_Plane"), [""])
sketch4.MapMode = "FlatFace"
sketch4.AttachmentOffset = App.Placement(App.Vector(0, 0, 23.842204), App.Rotation())
sketch4.addGeometry(Part.Circle(App.Vector(124.5, 7.5, 0), App.Vector(0, 0, 1), 1.6), False)
sketch4.addConstraint([
    Sketcher.Constraint("Diameter", 0, 3.2),
    Sketcher.Constraint("DistanceY", -1, 1, 0, 3, 7.5),
    Sketcher.Constraint("DistanceX", -1, 1, 0, 3, 124.516129),
])
pocket3 = body.newObject("PartDesign::Pocket", "Pocket002")
pocket3.Profile = sketch4
pocket3.Type = "ThroughAll"
doc.recompute()

fillet = body.newObject("PartDesign::Fillet", "Fillet")
fillet.Base = (pocket3, edges_at(pocket3, [
    (-30.484, 2.5, 2.842),
    (-30.484, 2.5, 15.842),
    (-30.484, 2.5, 24.842),
    (-30.484, 12.5, 2.842),
    (-30.484, 12.5, 15.842),
    (-30.484, 12.5, 24.842),
]))
fillet.Radius = 5
doc.recompute()

fillet2 = body.newObject("PartDesign::Fillet", "Fillet001")
fillet2.Base = (fillet, edges_at(fillet, [
    (131.516, 0, 0.842),
    (131.516, 0, 18.842),
    (131.516, 15, 18.842),
    (131.516, 15, 0.842),
]))
fillet2.Radius = 7

# Sketch on XY plane
sketch5 = body.newObject("Sketcher::SketchObject", "Sketch004")
sketch5.AttachmentSupport = (doc.getObject("XY_Plane"), [""])
sketch5.MapMode = "FlatFace"
sketch5.AttachmentOffset = App.Placement(App.Vector(0, 0, 23.842204), App.Rotation())
sketch5.addGeometry(Part.Circle(App.Vector(124.5, 7.5, 0), App.Vector(0, 0, 1), 3.5), False)
sketch5.addConstraint([
    Sketcher.Constraint("Diameter", 0, 7.0),
    Sketcher.Constraint("DistanceY", -1, 1, 0, 3, 7.5),
    Sketcher.Constraint("DistanceX", -1, 1, 0, 3, 124.516129),
])
pocket4 = body.newObject("PartDesign::Pocket", "Pocket003")
pocket4.Profile = sketch5
pocket4.Length = 3

# Sketch on XY plane
sketch6 = body.newObject("Sketcher::SketchObject", "Sketch005")
sketch6.AttachmentSupport = (doc.getObject("XY_Plane"), [""])
sketch6.MapMode = "FlatFace"
sketch6.AttachmentOffset = App.Placement(App.Vector(0, 0, 23.842204), App.Rotation())
sketch6.addGeometry(Part.Circle(App.Vector(111.5, 7.5, 0), App.Vector(0, 0, 1), 1), False)
sketch6.addConstraint([
    Sketcher.Constraint("Diameter", 0, 2.0),
    Sketcher.Constraint("DistanceY", -1, 1, 0, 3, 7.5),
    Sketcher.Constraint("DistanceX", -1, 1, 0, 3, 111.516129),
])
pocket5 = body.newObject("PartDesign::Pocket", "Pocket004")
pocket5.Profile = sketch6
pocket5.Length = 5

doc.recompute()
